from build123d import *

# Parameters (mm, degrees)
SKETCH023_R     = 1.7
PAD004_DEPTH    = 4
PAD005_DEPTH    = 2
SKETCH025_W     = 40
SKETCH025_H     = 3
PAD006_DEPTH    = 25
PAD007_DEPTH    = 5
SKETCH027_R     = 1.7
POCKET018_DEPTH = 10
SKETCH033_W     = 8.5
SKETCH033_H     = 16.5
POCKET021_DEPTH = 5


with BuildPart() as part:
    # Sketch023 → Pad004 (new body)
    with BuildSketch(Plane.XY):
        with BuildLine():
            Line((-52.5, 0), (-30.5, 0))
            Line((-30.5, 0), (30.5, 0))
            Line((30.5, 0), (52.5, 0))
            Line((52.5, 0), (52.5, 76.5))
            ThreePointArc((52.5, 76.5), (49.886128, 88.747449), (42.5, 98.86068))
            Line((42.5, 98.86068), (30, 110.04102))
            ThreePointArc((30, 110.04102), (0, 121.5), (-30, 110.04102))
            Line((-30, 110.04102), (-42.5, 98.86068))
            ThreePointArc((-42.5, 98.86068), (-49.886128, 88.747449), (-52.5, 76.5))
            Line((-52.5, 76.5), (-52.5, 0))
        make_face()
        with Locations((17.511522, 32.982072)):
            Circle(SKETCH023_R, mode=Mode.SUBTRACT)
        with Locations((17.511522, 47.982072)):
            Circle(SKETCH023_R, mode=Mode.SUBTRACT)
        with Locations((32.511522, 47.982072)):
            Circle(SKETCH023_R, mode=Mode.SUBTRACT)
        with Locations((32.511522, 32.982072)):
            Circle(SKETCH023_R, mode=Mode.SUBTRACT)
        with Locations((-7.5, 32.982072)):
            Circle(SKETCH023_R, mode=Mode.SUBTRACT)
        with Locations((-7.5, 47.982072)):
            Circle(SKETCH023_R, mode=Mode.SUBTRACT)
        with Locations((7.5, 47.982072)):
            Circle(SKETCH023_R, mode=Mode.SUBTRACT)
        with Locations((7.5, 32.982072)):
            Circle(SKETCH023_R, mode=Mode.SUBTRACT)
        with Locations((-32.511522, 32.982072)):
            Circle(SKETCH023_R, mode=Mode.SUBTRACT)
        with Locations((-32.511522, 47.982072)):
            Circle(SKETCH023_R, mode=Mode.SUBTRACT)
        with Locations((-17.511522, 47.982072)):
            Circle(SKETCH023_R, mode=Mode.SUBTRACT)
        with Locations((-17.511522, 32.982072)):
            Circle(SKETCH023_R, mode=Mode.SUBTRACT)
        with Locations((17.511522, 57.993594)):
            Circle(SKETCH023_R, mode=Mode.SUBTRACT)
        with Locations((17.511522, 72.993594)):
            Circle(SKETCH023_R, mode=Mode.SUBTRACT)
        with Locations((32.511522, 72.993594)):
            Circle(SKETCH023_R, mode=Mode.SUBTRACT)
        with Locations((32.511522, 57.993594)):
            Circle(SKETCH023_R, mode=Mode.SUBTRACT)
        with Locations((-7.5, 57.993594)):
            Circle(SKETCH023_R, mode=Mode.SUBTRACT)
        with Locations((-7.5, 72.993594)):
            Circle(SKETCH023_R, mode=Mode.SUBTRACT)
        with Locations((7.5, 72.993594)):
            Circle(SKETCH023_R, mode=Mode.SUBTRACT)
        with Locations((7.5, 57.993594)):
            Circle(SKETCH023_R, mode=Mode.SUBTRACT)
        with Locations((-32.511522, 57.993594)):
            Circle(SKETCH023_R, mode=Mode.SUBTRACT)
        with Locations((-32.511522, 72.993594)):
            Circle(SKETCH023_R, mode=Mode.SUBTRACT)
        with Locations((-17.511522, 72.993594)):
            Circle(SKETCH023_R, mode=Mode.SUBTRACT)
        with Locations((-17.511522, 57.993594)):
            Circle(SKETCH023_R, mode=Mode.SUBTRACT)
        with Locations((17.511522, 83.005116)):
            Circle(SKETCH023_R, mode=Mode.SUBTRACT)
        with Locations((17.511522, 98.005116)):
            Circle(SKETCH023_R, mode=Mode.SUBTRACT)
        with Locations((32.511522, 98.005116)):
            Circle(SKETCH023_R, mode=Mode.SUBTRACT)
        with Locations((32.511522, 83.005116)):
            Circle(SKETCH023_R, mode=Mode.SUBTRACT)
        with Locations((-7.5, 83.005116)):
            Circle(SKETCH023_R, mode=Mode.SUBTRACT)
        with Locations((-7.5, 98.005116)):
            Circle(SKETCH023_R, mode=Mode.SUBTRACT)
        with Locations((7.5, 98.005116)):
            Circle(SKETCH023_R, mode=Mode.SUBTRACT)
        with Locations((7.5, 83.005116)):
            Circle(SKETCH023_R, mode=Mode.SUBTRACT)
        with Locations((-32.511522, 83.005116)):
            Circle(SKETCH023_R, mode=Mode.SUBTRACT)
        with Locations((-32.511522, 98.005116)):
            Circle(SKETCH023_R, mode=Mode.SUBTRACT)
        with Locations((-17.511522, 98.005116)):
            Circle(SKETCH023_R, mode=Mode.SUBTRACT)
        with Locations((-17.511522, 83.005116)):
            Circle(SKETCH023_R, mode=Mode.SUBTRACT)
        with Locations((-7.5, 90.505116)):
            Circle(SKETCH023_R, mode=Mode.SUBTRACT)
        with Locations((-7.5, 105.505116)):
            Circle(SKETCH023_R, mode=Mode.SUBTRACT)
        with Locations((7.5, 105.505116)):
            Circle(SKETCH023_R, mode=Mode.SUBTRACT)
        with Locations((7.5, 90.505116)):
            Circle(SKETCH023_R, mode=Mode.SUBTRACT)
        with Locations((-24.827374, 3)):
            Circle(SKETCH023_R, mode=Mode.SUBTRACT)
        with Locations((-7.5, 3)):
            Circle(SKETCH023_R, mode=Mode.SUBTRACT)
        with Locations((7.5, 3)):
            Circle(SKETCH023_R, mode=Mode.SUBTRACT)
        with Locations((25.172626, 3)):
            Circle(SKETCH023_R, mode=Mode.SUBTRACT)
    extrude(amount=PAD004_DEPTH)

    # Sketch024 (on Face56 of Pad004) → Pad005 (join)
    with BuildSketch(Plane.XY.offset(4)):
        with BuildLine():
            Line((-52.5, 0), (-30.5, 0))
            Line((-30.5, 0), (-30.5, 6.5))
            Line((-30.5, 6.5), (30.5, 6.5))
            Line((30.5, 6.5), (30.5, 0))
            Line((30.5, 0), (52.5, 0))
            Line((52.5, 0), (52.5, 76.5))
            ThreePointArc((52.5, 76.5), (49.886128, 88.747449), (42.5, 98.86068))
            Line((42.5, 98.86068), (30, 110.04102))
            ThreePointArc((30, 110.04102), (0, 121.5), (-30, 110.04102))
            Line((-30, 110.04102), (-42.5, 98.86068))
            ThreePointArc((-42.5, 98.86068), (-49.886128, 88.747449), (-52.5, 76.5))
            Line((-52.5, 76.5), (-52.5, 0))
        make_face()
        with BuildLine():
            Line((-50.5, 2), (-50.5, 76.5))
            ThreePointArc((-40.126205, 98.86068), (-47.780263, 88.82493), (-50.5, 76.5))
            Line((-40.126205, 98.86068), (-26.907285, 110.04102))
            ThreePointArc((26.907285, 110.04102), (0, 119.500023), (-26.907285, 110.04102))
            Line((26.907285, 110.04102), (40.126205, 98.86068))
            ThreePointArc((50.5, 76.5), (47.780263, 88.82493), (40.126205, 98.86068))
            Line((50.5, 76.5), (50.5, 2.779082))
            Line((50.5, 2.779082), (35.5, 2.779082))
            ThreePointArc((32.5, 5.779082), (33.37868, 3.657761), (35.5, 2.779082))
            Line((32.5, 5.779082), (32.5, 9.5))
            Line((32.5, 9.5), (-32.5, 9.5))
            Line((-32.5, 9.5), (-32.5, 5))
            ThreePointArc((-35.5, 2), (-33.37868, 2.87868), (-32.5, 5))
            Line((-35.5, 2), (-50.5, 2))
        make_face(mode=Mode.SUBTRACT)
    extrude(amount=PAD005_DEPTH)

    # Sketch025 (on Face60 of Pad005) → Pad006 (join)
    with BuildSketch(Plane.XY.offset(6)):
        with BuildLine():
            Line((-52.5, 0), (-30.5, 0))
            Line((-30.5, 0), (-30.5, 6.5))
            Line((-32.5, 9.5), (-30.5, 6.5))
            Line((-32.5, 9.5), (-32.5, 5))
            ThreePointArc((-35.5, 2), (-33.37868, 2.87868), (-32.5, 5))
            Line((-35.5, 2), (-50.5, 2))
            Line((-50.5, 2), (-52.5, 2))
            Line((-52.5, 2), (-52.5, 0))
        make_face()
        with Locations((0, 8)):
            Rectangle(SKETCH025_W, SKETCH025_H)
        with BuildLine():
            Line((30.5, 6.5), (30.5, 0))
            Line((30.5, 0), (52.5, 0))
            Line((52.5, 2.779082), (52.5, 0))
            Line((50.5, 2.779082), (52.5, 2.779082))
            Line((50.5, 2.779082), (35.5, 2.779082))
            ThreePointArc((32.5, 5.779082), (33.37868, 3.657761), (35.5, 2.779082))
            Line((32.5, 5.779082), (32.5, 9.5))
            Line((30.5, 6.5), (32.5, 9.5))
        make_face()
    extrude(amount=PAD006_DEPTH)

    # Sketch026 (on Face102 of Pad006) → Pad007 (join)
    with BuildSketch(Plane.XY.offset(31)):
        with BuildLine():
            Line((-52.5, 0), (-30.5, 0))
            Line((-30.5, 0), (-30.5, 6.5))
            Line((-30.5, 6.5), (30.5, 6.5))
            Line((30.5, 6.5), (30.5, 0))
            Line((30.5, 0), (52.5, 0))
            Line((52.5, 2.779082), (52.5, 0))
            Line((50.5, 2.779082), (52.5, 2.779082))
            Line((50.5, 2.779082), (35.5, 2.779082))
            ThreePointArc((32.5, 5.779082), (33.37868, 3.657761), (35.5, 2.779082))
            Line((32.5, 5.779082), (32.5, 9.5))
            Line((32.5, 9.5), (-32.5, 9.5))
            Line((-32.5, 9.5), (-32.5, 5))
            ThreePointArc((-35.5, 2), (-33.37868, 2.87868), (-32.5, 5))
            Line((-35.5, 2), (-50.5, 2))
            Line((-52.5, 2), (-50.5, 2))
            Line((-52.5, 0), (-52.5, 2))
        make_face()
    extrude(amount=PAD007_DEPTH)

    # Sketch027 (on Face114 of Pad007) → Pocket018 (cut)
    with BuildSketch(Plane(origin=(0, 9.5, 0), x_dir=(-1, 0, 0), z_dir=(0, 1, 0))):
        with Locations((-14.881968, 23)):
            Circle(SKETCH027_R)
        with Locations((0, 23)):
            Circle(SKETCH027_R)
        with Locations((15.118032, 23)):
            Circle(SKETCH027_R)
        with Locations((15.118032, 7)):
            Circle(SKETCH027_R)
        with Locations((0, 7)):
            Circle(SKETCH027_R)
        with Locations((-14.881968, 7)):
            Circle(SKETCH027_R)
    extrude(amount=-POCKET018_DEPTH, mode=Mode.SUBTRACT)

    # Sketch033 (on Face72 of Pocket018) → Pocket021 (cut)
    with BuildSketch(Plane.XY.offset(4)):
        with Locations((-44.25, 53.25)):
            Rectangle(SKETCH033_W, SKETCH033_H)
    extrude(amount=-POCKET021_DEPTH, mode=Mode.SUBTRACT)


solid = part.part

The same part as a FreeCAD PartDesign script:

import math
import FreeCAD as App
import Part
import Sketcher
from FreeCAD import Vector
Q = App.Units.Quantity


def add_polygon(sketch, points):
    """Adds a closed chain of lines whose ends are joined by coincident constraints."""
    first, n = sketch.GeometryCount, len(points)
    for a, b in zip(points, points[1:] + points[:1]):
        sketch.addGeometry(Part.LineSegment(App.Vector(*a, 0), App.Vector(*b, 0)), False)
    for i in range(n):
        sketch.addConstraint(Sketcher.Constraint("Coincident", first + i, 2, first + (i + 1) % n, 1))

doc = App.newDocument("Part")
body = doc.addObject("PartDesign::Body", "Body")

# Sketch on XY plane
sketch1 = body.newObject("Sketcher::SketchObject", "Sketch")
sketch1.AttachmentSupport = (doc.getObject("XY_Plane"), [""])
sketch1.MapMode = "FlatFace"
sketch1.addGeometry([
    Part.LineSegment(Vector(-52.5, 0, 0), Vector(52.5, 0, 0)),  # 0
    Part.LineSegment(Vector(52.5, 0, 0), Vector(52.5, 76.5, 0)),  # 1
    Part.ArcOfCircle(Part.Circle(Vector(22.5, 76.5, 0), Vector(0, 0, 1), 30), math.radians(0), math.radians(48)),  # 2
    Part.LineSegment(Vector(42.5, 98.9, 0), Vector(30, 110, 0)),  # 3
    Part.ArcOfCircle(Part.Circle(Vector(0, 76.5, 0), Vector(0, 0, 1), 45), math.radians(48), math.radians(132)),  # 4
    Part.LineSegment(Vector(-30, 110, 0), Vector(-42.5, 98.9, 0)),  # 5
    Part.ArcOfCircle(Part.Circle(Vector(-22.5, 76.5, 0), Vector(0, 0, 1), 30), math.radians(132), math.radians(180)),  # 6
    Part.LineSegment(Vector(-52.5, 76.5, 0), Vector(-52.5, 0, 0)),  # 7
    Part.Circle(Vector(-24.8, 3, 0), Vector(0, 0, 1), 1.7),  # 8
    Part.Circle(Vector(-7.5, 3, 0), Vector(0, 0, 1), 1.7),  # 9
    Part.Circle(Vector(-32.5, 33, 0), Vector(0, 0, 1), 1.7),  # 10
    Part.Circle(Vector(-17.5, 33, 0), Vector(0, 0, 1), 1.7),  # 11
    Part.Circle(Vector(-32.5, 48, 0), Vector(0, 0, 1), 1.7),  # 12
    Part.Circle(Vector(-17.5, 48, 0), Vector(0, 0, 1), 1.7),  # 13
    Part.Circle(Vector(-7.5, 33, 0), Vector(0, 0, 1), 1.7),  # 14
    Part.Circle(Vector(-7.5, 48, 0), Vector(0, 0, 1), 1.7),  # 15
    Part.Circle(Vector(7.5, 3, 0), Vector(0, 0, 1), 1.7),  # 16
    Part.Circle(Vector(25.2, 3, 0), Vector(0, 0, 1), 1.7),  # 17
    Part.Circle(Vector(7.5, 33, 0), Vector(0, 0, 1), 1.7),  # 18
    Part.Circle(Vector(7.5, 48, 0), Vector(0, 0, 1), 1.7),  # 19
    Part.Circle(Vector(17.5, 33, 0), Vector(0, 0, 1), 1.7),  # 20
    Part.Circle(Vector(32.5, 33, 0), Vector(0, 0, 1), 1.7),  # 21
    Part.Circle(Vector(17.5, 48, 0), Vector(0, 0, 1), 1.7),  # 22
    Part.Circle(Vector(32.5, 48, 0), Vector(0, 0, 1), 1.7),  # 23
    Part.Circle(Vector(-32.5, 58, 0), Vector(0, 0, 1), 1.7),  # 24
    Part.Circle(Vector(-17.5, 58, 0), Vector(0, 0, 1), 1.7),  # 25
    Part.Circle(Vector(-32.5, 73, 0), Vector(0, 0, 1), 1.7),  # 26
    Part.Circle(Vector(-17.5, 73, 0), Vector(0, 0, 1), 1.7),  # 27
    Part.Circle(Vector(-7.5, 58, 0), Vector(0, 0, 1), 1.7),  # 28
    Part.Circle(Vector(-7.5, 73, 0), Vector(0, 0, 1), 1.7),  # 29
    Part.Circle(Vector(-32.5, 83, 0), Vector(0, 0, 1), 1.7),  # 30
    Part.Circle(Vector(-17.5, 83, 0), Vector(0, 0, 1), 1.7),  # 31
    Part.Circle(Vector(-32.5, 98, 0), Vector(0, 0, 1), 1.7),  # 32
    Part.Circle(Vector(-17.5, 98, 0), Vector(0, 0, 1), 1.7),  # 33
    Part.Circle(Vector(-7.5, 83, 0), Vector(0, 0, 1), 1.7),  # 34
    Part.Circle(Vector(-7.5, 90.5, 0), Vector(0, 0, 1), 1.7),  # 35
    Part.Circle(Vector(-7.5, 98, 0), Vector(0, 0, 1), 1.7),  # 36
    Part.Circle(Vector(-7.5, 105.5, 0), Vector(0, 0, 1), 1.7),  # 37
    Part.Circle(Vector(7.5, 58, 0), Vector(0, 0, 1), 1.7),  # 38
    Part.Circle(Vector(7.5, 73, 0), Vector(0, 0, 1), 1.7),  # 39
    Part.Circle(Vector(17.5, 58, 0), Vector(0, 0, 1), 1.7),  # 40
    Part.Circle(Vector(32.5, 58, 0), Vector(0, 0, 1), 1.7),  # 41
    Part.Circle(Vector(17.5, 73, 0), Vector(0, 0, 1), 1.7),  # 42
    Part.Circle(Vector(32.5, 73, 0), Vector(0, 0, 1), 1.7),  # 43
    Part.Circle(Vector(7.5, 83, 0), Vector(0, 0, 1), 1.7),  # 44
    Part.Circle(Vector(7.5, 90.5, 0), Vector(0, 0, 1), 1.7),  # 45
    Part.Circle(Vector(7.5, 98, 0), Vector(0, 0, 1), 1.7),  # 46
    Part.Circle(Vector(7.5, 105.5, 0), Vector(0, 0, 1), 1.7),  # 47
    Part.Circle(Vector(17.5, 83, 0), Vector(0, 0, 1), 1.7),  # 48
    Part.Circle(Vector(32.5, 83, 0), Vector(0, 0, 1), 1.7),  # 49
    Part.Circle(Vector(17.5, 98, 0), Vector(0, 0, 1), 1.7),  # 50
    Part.Circle(Vector(32.5, 98, 0), Vector(0, 0, 1), 1.7),  # 51
], False)
sketch1.addConstraint([
    Sketcher.Constraint("Coincident", 0, 2, 1, 1),
    Sketcher.Constraint("Tangent", 1, 2, 2, 1),
    Sketcher.Constraint("Tangent", 2, 2, 3, 1),
    Sketcher.Constraint("Tangent", 3, 2, 4, 1),
    Sketcher.Constraint("Tangent", 4, 2, 5, 1),
    Sketcher.Constraint("Tangent", 5, 2, 6, 1),
    Sketcher.Constraint("Tangent", 6, 2, 7, 1),
    Sketcher.Constraint("Coincident", 7, 2, 0, 1),
    Sketcher.Constraint("Horizontal", 0),
    Sketcher.Constraint("Vertical", 1),
    Sketcher.Constraint("Vertical", 7),
    Sketcher.Constraint("Equal", 2, 6),
    Sketcher.Constraint("Equal", 8, 9),
    Sketcher.Constraint("Equal", 9, 10),
    Sketcher.Constraint("Equal", 10, 11),
    Sketcher.Constraint("Equal", 11, 12),
    Sketcher.Constraint("Equal", 12, 13),
    Sketcher.Constraint("Equal", 13, 14),
    Sketcher.Constraint("Equal", 14, 15),
    Sketcher.Constraint("Equal", 15, 16),
    Sketcher.Constraint("Equal", 16, 17),
    Sketcher.Constraint("Equal", 17, 18),
    Sketcher.Constraint("Equal", 18, 19),
    Sketcher.Constraint("Equal", 19, 20),
    Sketcher.Constraint("Equal", 20, 21),
    Sketcher.Constraint("Equal", 21, 22),
    Sketcher.Constraint("Equal", 22, 23),
    Sketcher.Constraint("Equal", 23, 24),
    Sketcher.Constraint("Equal", 24, 25),
    Sketcher.Constraint("Equal", 25, 26),
    Sketcher.Constraint("Equal", 26, 27),
    Sketcher.Constraint("Equal", 27, 28),
    Sketcher.Constraint("Equal", 28, 29),
    Sketcher.Constraint("Equal", 29, 30),
    Sketcher.Constraint("Equal", 30, 31),
    Sketcher.Constraint("Equal", 31, 32),
    Sketcher.Constraint("Equal", 32, 33),
    Sketcher.Constraint("Equal", 33, 34),
    Sketcher.Constraint("Equal", 34, 35),
    Sketcher.Constraint("Equal", 35, 36),
    Sketcher.Constraint("Equal", 36, 37),
    Sketcher.Constraint("Equal", 37, 38),
    Sketcher.Constraint("Equal", 38, 39),
    Sketcher.Constraint("Equal", 39, 40),
    Sketcher.Constraint("Equal", 40, 41),
    Sketcher.Constraint("Equal", 41, 42),
    Sketcher.Constraint("Equal", 42, 43),
    Sketcher.Constraint("Equal", 43, 44),
    Sketcher.Constraint("Equal", 44, 45),
    Sketcher.Constraint("Equal", 45, 46),
    Sketcher.Constraint("Equal", 46, 47),
    Sketcher.Constraint("Equal", 47, 48),
    Sketcher.Constraint("Equal", 48, 49),
    Sketcher.Constraint("Equal", 49, 50),
    Sketcher.Constraint("Equal", 50, 51),
    Sketcher.Constraint("Symmetric", 0, 2, 7, 2, -1, 1),
    Sketcher.Constraint("Symmetric", 9, 3, 16, 3, -2),
    Sketcher.Constraint("Symmetric", 14, 3, 18, 3, -2),
    Sketcher.Constraint("Symmetric", 15, 3, 19, 3, -2),
    Sketcher.Constraint("Symmetric", 11, 3, 20, 3, -2),
    Sketcher.Constraint("Symmetric", 10, 3, 21, 3, -2),
    Sketcher.Constraint("Symmetric", 13, 3, 22, 3, -2),
    Sketcher.Constraint("Symmetric", 12, 3, 23, 3, -2),
    Sketcher.Constraint("Symmetric", 28, 3, 38, 3, -2),
    Sketcher.Constraint("Symmetric", 29, 3, 39, 3, -2),
    Sketcher.Constraint("Symmetric", 25, 3, 40, 3, -2),
    Sketcher.Constraint("Symmetric", 24, 3, 41, 3, -2),
    Sketcher.Constraint("Symmetric", 27, 3, 42, 3, -2),
    Sketcher.Constraint("Symmetric", 26, 3, 43, 3, -2),
    Sketcher.Constraint("Symmetric", 34, 3, 44, 3, -2),
    Sketcher.Constraint("Symmetric", 35, 3, 45, 3, -2),
    Sketcher.Constraint("Symmetric", 36, 3, 46, 3, -2),
    Sketcher.Constraint("Symmetric", 37, 3, 47, 3, -2),
    Sketcher.Constraint("Symmetric", 31, 3, 48, 3, -2),
    Sketcher.Constraint("Symmetric", 30, 3, 49, 3, -2),
    Sketcher.Constraint("Symmetric", 33, 3, 50, 3, -2),
    Sketcher.Constraint("Symmetric", 32, 3, 51, 3, -2),
    Sketcher.Constraint("Symmetric", 3, 2, 4, 2, -2),
    Sketcher.Constraint("Horizontal", 2, 3, 4, 3),
    Sketcher.Constraint("Horizontal", 8, 3, 9, 3),
    Sketcher.Constraint("Horizontal", 10, 3, 11, 3),
    Sketcher.Constraint("Horizontal", 12, 3, 13, 3),
    Sketcher.Constraint("Horizontal", 11, 3, 14, 3),
    Sketcher.Constraint("Horizontal", 13, 3, 15, 3),
    Sketcher.Constraint("Horizontal", 16, 3, 17, 3),
    Sketcher.Constraint("Horizontal", 24, 3, 25, 3),
    Sketcher.Constraint("Horizontal", 26, 3, 27, 3),
    Sketcher.Constraint("Horizontal", 25, 3, 28, 3),
    Sketcher.Constraint("Horizontal", 27, 3, 29, 3),
    Sketcher.Constraint("Horizontal", 30, 3, 31, 3),
    Sketcher.Constraint("Horizontal", 32, 3, 33, 3),
    Sketcher.Constraint("Horizontal", 31, 3, 34, 3),
    Sketcher.Constraint("Horizontal", 33, 3, 36, 3),
    Sketcher.Constraint("Vertical", 10, 3, 12, 3),
    Sketcher.Constraint("Vertical", 11, 3, 13, 3),
    Sketcher.Constraint("Vertical", 9, 3, 14, 3),
    Sketcher.Constraint("Vertical", 14, 3, 15, 3),
    Sketcher.Constraint("Vertical", 12, 3, 24, 3),
    Sketcher.Constraint("Vertical", 13, 3, 25, 3),
    Sketcher.Constraint("Vertical", 24, 3, 26, 3),
    Sketcher.Constraint("Vertical", 25, 3, 27, 3),
    Sketcher.Constraint("Vertical", 15, 3, 28, 3),
    Sketcher.Constraint("Vertical", 28, 3, 29, 3),
    Sketcher.Constraint("Vertical", 26, 3, 30, 3),
    Sketcher.Constraint("Vertical", 27, 3, 31, 3),
    Sketcher.Constraint("Vertical", 30, 3, 32, 3),
    Sketcher.Constraint("Vertical", 31, 3, 33, 3),
    Sketcher.Constraint("Vertical", 29, 3, 34, 3),
    Sketcher.Constraint("Vertical", 34, 3, 35, 3),
    Sketcher.Constraint("Vertical", 35, 3, 36, 3),
    Sketcher.Constraint("Vertical", 36, 3, 37, 3),
    Sketcher.Constraint("Radius", 2, Q("29.999999 mm")),
    Sketcher.Constraint("Radius", 4, Q("45.000001 mm")),
    Sketcher.Constraint("Diameter", 8, Q("3.4 mm")),
    Sketcher.Constraint("DistanceX", 0, 1, 0, 2, Q("105 mm")),
    Sketcher.Constraint("DistanceY", 1, 1, 1, 2, Q("76.5 mm")),
    Sketcher.Constraint("DistanceY", -1, 1, 8, 3, Q("3 mm")),
    Sketcher.Constraint("DistanceX", 6, 3, 9, 3, Q("15.000001 mm")),
    Sketcher.Constraint("DistanceX", 10, 3, 11, 3, Q("15 mm")),
    Sketcher.Constraint("DistanceY", 10, 3, 12, 3, Q("15 mm")),
    Sketcher.Constraint("DistanceX", 8, 3, 17, 3, Q("50 mm")),
    Sketcher.Constraint("DistanceY", 24, 3, 26, 3, Q("15 mm")),
    Sketcher.Constraint("DistanceY", 30, 3, 32, 3, Q("15 mm")),
    Sketcher.Constraint("DistanceY", 35, 3, 37, 3, Q("15 mm")),
    Sketcher.Constraint("DistanceY", 34, 3, 35, 3, Q("7.5 mm")),
    Sketcher.Constraint("DistanceX", 11, 3, -1, 1, Q("17.511522 mm")),
    Sketcher.Constraint("DistanceX", 10, 3, 8, 3, Q("7.684148 mm")),
    Sketcher.Constraint("DistanceY", 10, 3, 6, 3, Q("43.517929 mm")),
    Sketcher.Constraint("DistanceY", 12, 3, 24, 3, Q("10.011522 mm")),
    Sketcher.Constraint("DistanceY", 26, 3, 30, 3, Q("10.011522 mm")),
])
pad1 = body.newObject("PartDesign::Pad", "Pad")
pad1.Profile = sketch1
pad1.Length = 4

# Sketch on XY plane
sketch2 = body.newObject("Sketcher::SketchObject", "Sketch001")
sketch2.AttachmentSupport = (doc.getObject("XY_Plane"), [""])
sketch2.MapMode = "FlatFace"
sketch2.AttachmentOffset = App.Placement(Vector(0, 0, 4), App.Rotation())
sketch2.addGeometry([
    Part.LineSegment(Vector(-52.5, 0, 0), Vector(-30.5, 0, 0)),  # 0
    Part.LineSegment(Vector(-30.5, 0, 0), Vector(-30.5, 6.5, 0)),  # 1
    Part.LineSegment(Vector(-30.5, 6.5, 0), Vector(30.5, 6.5, 0)),  # 2
    Part.LineSegment(Vector(30.5, 6.5, 0), Vector(30.5, 0, 0)),  # 3
    Part.LineSegment(Vector(30.5, 0, 0), Vector(52.5, 0, 0)),  # 4
    Part.LineSegment(Vector(52.5, 0, 0), Vector(52.5, 76.5, 0)),  # 5
    Part.ArcOfCircle(Part.Circle(Vector(22.5, 76.5, 0), Vector(0, 0, 1), 30), math.radians(0), math.radians(48)),  # 6
    Part.LineSegment(Vector(42.5, 98.9, 0), Vector(30, 110, 0)),  # 7
    Part.ArcOfCircle(Part.Circle(Vector(0, 76.5, 0), Vector(0, 0, 1), 45), math.radians(48), math.radians(132)),  # 8
    Part.LineSegment(Vector(-30, 110, 0), Vector(-42.5, 98.9, 0)),  # 9
    Part.ArcOfCircle(Part.Circle(Vector(-22.5, 76.5, 0), Vector(0, 0, 1), 30), math.radians(132), math.radians(180)),  # 10
    Part.LineSegment(Vector(-52.5, 76.5, 0), Vector(-52.5, 0, 0)),  # 11
    Part.LineSegment(Vector(-35.5, 2, 0), Vector(-50.5, 2, 0)),  # 12
    Part.LineSegment(Vector(-50.5, 2, 0), Vector(-50.5, 76.5, 0)),  # 13
    Part.ArcOfCircle(Part.Circle(Vector(-21.2, 76.5, 0), Vector(0, 0, 1), 29.3), math.radians(130), math.radians(180)),  # 14
    Part.LineSegment(Vector(-40.1, 98.9, 0), Vector(-26.9, 110, 0)),  # 15
    Part.ArcOfCircle(Part.Circle(Vector(0, 76.5, 0), Vector(0, 0, 1), 43), math.radians(51), math.radians(129)),  # 16
    Part.LineSegment(Vector(26.9, 110, 0), Vector(40.1, 98.9, 0)),  # 17
    Part.ArcOfCircle(Part.Circle(Vector(21.2, 76.5, 0), Vector(0, 0, 1), 29.3), math.radians(0), math.radians(50)),  # 18
    Part.LineSegment(Vector(50.5, 76.5, 0), Vector(50.5, 2.8, 0)),  # 19
    Part.LineSegment(Vector(50.5, 2.8, 0), Vector(35.5, 2.8, 0)),  # 20
    Part.ArcOfCircle(Part.Circle(Vector(35.5, 5.8, 0), Vector(0, 0, 1), 3), math.radians(180), math.radians(270)),  # 21
    Part.LineSegment(Vector(32.5, 5.8, 0), Vector(32.5, 9.5, 0)),  # 22
    Part.LineSegment(Vector(32.5, 9.5, 0), Vector(-32.5, 9.5, 0)),  # 23
    Part.LineSegment(Vector(-32.5, 9.5, 0), Vector(-32.5, 5, 0)),  # 24
    Part.ArcOfCircle(Part.Circle(Vector(-35.5, 5, 0), Vector(0, 0, 1), 3), math.radians(-90), math.radians(0)),  # 25
], False)
sketch2.addConstraint([
    Sketcher.Constraint("Coincident", 0, 2, 1, 1),
    Sketcher.Constraint("Coincident", 1, 2, 2, 1),
    Sketcher.Constraint("Coincident", 2, 2, 3, 1),
    Sketcher.Constraint("Coincident", 3, 2, 4, 1),
    Sketcher.Constraint("Coincident", 4, 2, 5, 1),
    Sketcher.Constraint("Tangent", 5, 2, 6, 1),
    Sketcher.Constraint("Tangent", 6, 2, 7, 1),
    Sketcher.Constraint("Tangent", 7, 2, 8, 1),
    Sketcher.Constraint("Tangent", 8, 2, 9, 1),
    Sketcher.Constraint("Tangent", 9, 2, 10, 1),
    Sketcher.Constraint("Tangent", 10, 2, 11, 1),
    Sketcher.Constraint("Coincident", 11, 2, 0, 1),
    Sketcher.Constraint("Coincident", 12, 2, 13, 1),
    Sketcher.Constraint("Tangent", 13, 2, 14, 2),
    Sketcher.Constraint("Tangent", 14, 1, 15, 1),
    Sketcher.Constraint("Coincident", 15, 2, 16, 2),
    Sketcher.Constraint("Coincident", 16, 1, 17, 1),
    Sketcher.Constraint("Tangent", 17, 2, 18, 2),
    Sketcher.Constraint("Tangent", 18, 1, 19, 1),
    Sketcher.Constraint("Coincident", 19, 2, 20, 1),
    Sketcher.Constraint("Tangent", 20, 2, 21, 2),
    Sketcher.Constraint("Tangent", 21, 1, 22, 1),
    Sketcher.Constraint("Coincident", 22, 2, 23, 1),
    Sketcher.Constraint("Coincident", 23, 2, 24, 1),
    Sketcher.Constraint("Tangent", 24, 2, 25, 2),
    Sketcher.Constraint("Tangent", 25, 1, 12, 1),
    Sketcher.Constraint("Horizontal", 0),
    Sketcher.Constraint("Vertical", 1),
    Sketcher.Constraint("Horizontal", 2),
    Sketcher.Constraint("Vertical", 3),
    Sketcher.Constraint("Horizontal", 4),
    Sketcher.Constraint("Vertical", 5),
    Sketcher.Constraint("Vertical", 11),
    Sketcher.Constraint("Horizontal", 12),
    Sketcher.Constraint("Vertical", 13),
    Sketcher.Constraint("Vertical", 19),
    Sketcher.Constraint("Horizontal", 20),
    Sketcher.Constraint("Vertical", 22),
    Sketcher.Constraint("Horizontal", 23),
    Sketcher.Constraint("Vertical", 24),
    Sketcher.Constraint("Coincident", 16, 3, 8, 3),
    Sketcher.Constraint("Equal", 6, 10),
    Sketcher.Constraint("Equal", 14, 18),
    Sketcher.Constraint("Equal", 21, 25),
    Sketcher.Constraint("Symmetric", 0, 2, 3, 2, -1, 1),
    Sketcher.Constraint("Symmetric", 6, 3, 10, 3, -2),
    Sketcher.Constraint("Symmetric", 14, 3, 18, 3, -2),
    Sketcher.Constraint("Symmetric", 15, 2, 16, 1, -2),
    Sketcher.Constraint("PointOnObject", 0, 2, -1),
    Sketcher.Constraint("Horizontal", 6, 3, 8, 3),
    Sketcher.Constraint("Horizontal", 8, 3, 14, 3),
    Sketcher.Constraint("Horizontal", 9, 2, 14, 1),
    Sketcher.Constraint("Horizontal", 8, 2, 15, 2),
    Sketcher.Constraint("Equal", 12, 20),
    Sketcher.Constraint("Radius", 6, Q("29.999999 mm")),
    Sketcher.Constraint("Radius", 8, Q("45.000001 mm")),
    Sketcher.Constraint("Radius", 21, Q("2.999999 mm")),
    Sketcher.Constraint("DistanceX", 0, 1, 0, 2, Q("22 mm")),
    Sketcher.Constraint("DistanceX", 2, 1, 2, 2, Q("61 mm")),
    Sketcher.Constraint("DistanceX", 12, 2, 12, 1, Q("15 mm")),
    Sketcher.Constraint("DistanceX", 23, 2, 23, 1, Q("65 mm")),
    Sketcher.Constraint("DistanceY", 1, 1, 1, 2, Q("6.5 mm")),
    Sketcher.Constraint("DistanceY", 5, 1, 5, 2, Q("76.5 mm")),
    Sketcher.Constraint("DistanceY", 13, 1, 13, 2, Q("74.5 mm")),
    Sketcher.Constraint("DistanceY", 24, 2, 24, 1, Q("4.5 mm")),
    Sketcher.Constraint("Radius", 14, Q("29.286085 mm")),
    Sketcher.Constraint("DistanceY", 22, 1, 22, 2, Q("3.720918 mm")),
])
pad2 = body.newObject("PartDesign::Pad", "Pad001")
pad2.Profile = sketch2
pad2.Length = 2

# Sketch on XY plane
sketch3 = body.newObject("Sketcher::SketchObject", "Sketch002")
sketch3.AttachmentSupport = (doc.getObject("XY_Plane"), [""])
sketch3.MapMode = "FlatFace"
sketch3.AttachmentOffset = App.Placement(Vector(0, 0, 6), App.Rotation())
sketch3.addGeometry(Part.LineSegment(Vector(-52.5, 0, 0), Vector(-30.5, 0, 0)), False)  # 0
sketch3.addGeometry(Part.LineSegment(Vector(-30.5, 0, 0), Vector(-30.5, 6.5, 0)), False)  # 1
sketch3.addGeometry(Part.LineSegment(Vector(-30.5, 6.5, 0), Vector(-32.5, 9.5, 0)), False)  # 2
sketch3.addGeometry(Part.LineSegment(Vector(-32.5, 9.5, 0), Vector(-32.5, 5, 0)), False)  # 3
sketch3.addGeometry(Part.ArcOfCircle(Part.Circle(Vector(-35.5, 5, 0), Vector(0, 0, 1), 3), math.radians(-90), math.radians(0)), False)  # 4
sketch3.addGeometry(Part.LineSegment(Vector(-35.5, 2, 0), Vector(-52.5, 2, 0)), False)  # 5
sketch3.addGeometry(Part.LineSegment(Vector(-52.5, 2, 0), Vector(-52.5, 0, 0)), False)  # 6
add_polygon(sketch3, [(-20, 9.5), (-20, 6.5), (20, 6.5), (20, 9.5)])  # lines 7-10
sketch3.addGeometry(Part.LineSegment(Vector(30.5, 6.5, 0), Vector(30.5, 0, 0)), False)  # 11
sketch3.addGeometry(Part.LineSegment(Vector(30.5, 0, 0), Vector(52.5, 0, 0)), False)  # 12
sketch3.addGeometry(Part.LineSegment(Vector(52.5, 0, 0), Vector(52.5, 2.8, 0)), False)  # 13
sketch3.addGeometry(Part.LineSegment(Vector(52.5, 2.8, 0), Vector(35.5, 2.8, 0)), False)  # 14
sketch3.addGeometry(Part.ArcOfCircle(Part.Circle(Vector(35.5, 5.8, 0), Vector(0, 0, 1), 3), math.radians(180), math.radians(270)), False)  # 15
sketch3.addGeometry(Part.LineSegment(Vector(32.5, 5.8, 0), Vector(32.5, 9.5, 0)), False)  # 16
sketch3.addGeometry(Part.LineSegment(Vector(32.5, 9.5, 0), Vector(30.5, 6.5, 0)), False)  # 17
sketch3.addConstraint([
    Sketcher.Constraint("Coincident", 0, 2, 1, 1),
    Sketcher.Constraint("Coincident", 1, 2, 2, 1),
    Sketcher.Constraint("Coincident", 2, 2, 3, 1),
    Sketcher.Constraint("Tangent", 3, 2, 4, 2),
    Sketcher.Constraint("Tangent", 4, 1, 5, 1),
    Sketcher.Constraint("Coincident", 5, 2, 6, 1),
    Sketcher.Constraint("Coincident", 6, 2, 0, 1),
    Sketcher.Constraint("Coincident", 11, 2, 12, 1),
    Sketcher.Constraint("Coincident", 12, 2, 13, 1),
    Sketcher.Constraint("Coincident", 13, 2, 14, 1),
    Sketcher.Constraint("Tangent", 14, 2, 15, 2),
    Sketcher.Constraint("Tangent", 15, 1, 16, 1),
    Sketcher.Constraint("Coincident", 16, 2, 17, 1),
    Sketcher.Constraint("Coincident", 17, 2, 11, 1),
    Sketcher.Constraint("Horizontal", 0),
    Sketcher.Constraint("Vertical", 1),
    Sketcher.Constraint("Vertical", 3),
    Sketcher.Constraint("Horizontal", 5),
    Sketcher.Constraint("Vertical", 6),
    Sketcher.Constraint("Vertical", 7),
    Sketcher.Constraint("Horizontal", 8),
    Sketcher.Constraint("Vertical", 9),
    Sketcher.Constraint("Horizontal", 10),
    Sketcher.Constraint("Vertical", 11),
    Sketcher.Constraint("Horizontal", 12),
    Sketcher.Constraint("Vertical", 13),
    Sketcher.Constraint("Horizontal", 14),
    Sketcher.Constraint("Vertical", 16),
    Sketcher.Constraint("Equal", 4, 15),
    Sketcher.Constraint("Symmetric", 0, 2, 11, 2, -1, 1),
    Sketcher.Constraint("Symmetric", 6, 2, 12, 2, -2),
    Sketcher.Constraint("Symmetric", 2, 2, 16, 2, -2),
    Sketcher.Constraint("Horizontal", 1, 2, 7, 2),
    Sketcher.Constraint("Horizontal", 2, 2, 9, 2),
    Sketcher.Constraint("Horizontal", 8, 2, 17, 2),
    Sketcher.Constraint("Radius", 4, Q("3.000001 mm")),
    Sketcher.Constraint("DistanceX", 0, 1, 0, 2, Q("22 mm")),
    Sketcher.Constraint("DistanceX", 5, 2, 5, 1, Q("17 mm")),
    Sketcher.Constraint("DistanceX", 8, 1, 8, 2, Q("40 mm")),
    Sketcher.Constraint("DistanceY", 6, 2, 6, 1, Q("2 mm")),
    Sketcher.Constraint("DistanceY", 7, 2, 7, 1, Q("3 mm")),
    Sketcher.Constraint("DistanceY", 1, 1, 1, 2, Q("6.5 mm")),
    Sketcher.Constraint("DistanceX", 7, 2, -1, 1, Q("20 mm")),
    Sketcher.Constraint("DistanceX", 4, 3, 15, 3, Q("71.000001 mm")),
    Sketcher.Constraint("DistanceY", 13, 1, 13, 2, Q("2.779082 mm")),
])
pad3 = body.newObject("PartDesign::Pad", "Pad002")
pad3.Profile = sketch3
pad3.Length = 25

# Sketch on XY plane
sketch4 = body.newObject("Sketcher::SketchObject", "Sketch003")
sketch4.AttachmentSupport = (doc.getObject("XY_Plane"), [""])
sketch4.MapMode = "FlatFace"
sketch4.AttachmentOffset = App.Placement(Vector(0, 0, 31), App.Rotation())
sketch4.addGeometry([
    Part.LineSegment(Vector(-52.5, 0, 0), Vector(-30.5, 0, 0)),  # 0
    Part.LineSegment(Vector(-30.5, 0, 0), Vector(-30.5, 6.5, 0)),  # 1
    Part.LineSegment(Vector(-30.5, 6.5, 0), Vector(30.5, 6.5, 0)),  # 2
    Part.LineSegment(Vector(30.5, 6.5, 0), Vector(30.5, 0, 0)),  # 3
    Part.LineSegment(Vector(30.5, 0, 0), Vector(52.5, 0, 0)),  # 4
    Part.LineSegment(Vector(52.5, 0, 0), Vector(52.5, 2.8, 0)),  # 5
    Part.LineSegment(Vector(52.5, 2.8, 0), Vector(35.5, 2.8, 0)),  # 6
    Part.ArcOfCircle(Part.Circle(Vector(35.5, 5.8, 0), Vector(0, 0, 1), 3), math.radians(180), math.radians(270)),  # 7
    Part.LineSegment(Vector(32.5, 5.8, 0), Vector(32.5, 9.5, 0)),  # 8
    Part.LineSegment(Vector(32.5, 9.5, 0), Vector(-32.5, 9.5, 0)),  # 9
    Part.LineSegment(Vector(-32.5, 9.5, 0), Vector(-32.5, 5, 0)),  # 10
    Part.ArcOfCircle(Part.Circle(Vector(-35.5, 5, 0), Vector(0, 0, 1), 3), math.radians(-90), math.radians(0)),  # 11
    Part.LineSegment(Vector(-35.5, 2, 0), Vector(-52.5, 2, 0)),  # 12
    Part.LineSegment(Vector(-52.5, 2, 0), Vector(-52.5, 0, 0)),  # 13
], False)
sketch4.addConstraint([
    Sketcher.Constraint("Coincident", 0, 2, 1, 1),
    Sketcher.Constraint("Coincident", 1, 2, 2, 1),
    Sketcher.Constraint("Coincident", 2, 2, 3, 1),
    Sketcher.Constraint("Coincident", 3, 2, 4, 1),
    Sketcher.Constraint("Coincident", 4, 2, 5, 1),
    Sketcher.Constraint("Coincident", 5, 2, 6, 1),
    Sketcher.Constraint("Tangent", 6, 2, 7, 2),
    Sketcher.Constraint("Tangent", 7, 1, 8, 1),
    Sketcher.Constraint("Coincident", 8, 2, 9, 1),
    Sketcher.Constraint("Coincident", 9, 2, 10, 1),
    Sketcher.Constraint("Tangent", 10, 2, 11, 2),
    Sketcher.Constraint("Tangent", 11, 1, 12, 1),
    Sketcher.Constraint("Coincident", 12, 2, 13, 1),
    Sketcher.Constraint("Coincident", 13, 2, 0, 1),
    Sketcher.Constraint("Horizontal", 0),
    Sketcher.Constraint("Vertical", 1),
    Sketcher.Constraint("Horizontal", 2),
    Sketcher.Constraint("Vertical", 3),
    Sketcher.Constraint("Horizontal", 4),
    Sketcher.Constraint("Vertical", 5),
    Sketcher.Constraint("Horizontal", 6),
    Sketcher.Constraint("Vertical", 8),
    Sketcher.Constraint("Horizontal", 9),
    Sketcher.Constraint("Vertical", 10),
    Sketcher.Constraint("Horizontal", 12),
    Sketcher.Constraint("Vertical", 13),
    Sketcher.Constraint("Equal", 7, 11),
    Sketcher.Constraint("Symmetric", 0, 2, 3, 2, -1, 1),
    Sketcher.Constraint("Symmetric", 4, 2, 13, 2, -2),
    Sketcher.Constraint("Equal", 6, 12),
    Sketcher.Constraint("Radius", 7, Q("2.999999 mm")),
    Sketcher.Constraint("DistanceX", 0, 1, 0, 2, Q("22 mm")),
    Sketcher.Constraint("DistanceX", 2, 1, 2, 2, Q("61 mm")),
    Sketcher.Constraint("DistanceX", 6, 2, 6, 1, Q("17 mm")),
    Sketcher.Constraint("DistanceY", 13, 2, 13, 1, Q("2 mm")),
    Sketcher.Constraint("DistanceY", 1, 1, 1, 2, Q("6.5 mm")),
    Sketcher.Constraint("DistanceY", 10, 2, 10, 1, Q("4.5 mm")),
    Sketcher.Constraint("DistanceY", 5, 1, 5, 2, Q("2.779082 mm")),
])
pad4 = body.newObject("PartDesign::Pad", "Pad003")
pad4.Profile = sketch4
pad4.Length = 5

# Sketch on XZ plane
sketch5 = body.newObject("Sketcher::SketchObject", "Sketch004")
sketch5.AttachmentSupport = (doc.getObject("XZ_Plane"), [""])
sketch5.MapMode = "FlatFace"
sketch5.AttachmentOffset = App.Placement(Vector(0, 0, -9.5), App.Rotation())
sketch5.addGeometry([
    Part.Circle(Vector(14.9, 23, 0), Vector(0, 0, 1), 1.7),  # 0
    Part.Circle(Vector(0, 23, 0), Vector(0, 0, 1), 1.7),  # 1
    Part.Circle(Vector(-15.1, 23, 0), Vector(0, 0, 1), 1.7),  # 2
    Part.Circle(Vector(-15.1, 7, 0), Vector(0, 0, 1), 1.7),  # 3
    Part.Circle(Vector(0, 7, 0), Vector(0, 0, 1), 1.7),  # 4
    Part.Circle(Vector(14.9, 7, 0), Vector(0, 0, 1), 1.7),  # 5
], False)
sketch5.addConstraint([
    Sketcher.Constraint("Equal", 0, 1),
    Sketcher.Constraint("Equal", 1, 2),
    Sketcher.Constraint("Equal", 2, 3),
    Sketcher.Constraint("Equal", 3, 4),
    Sketcher.Constraint("Equal", 4, 5),
    Sketcher.Constraint("PointOnObject", 1, 3, -2),
    Sketcher.Constraint("PointOnObject", 4, 3, -2),
    Sketcher.Constraint("Horizontal", 0, 3, 1, 3),
    Sketcher.Constraint("Horizontal", 1, 3, 2, 3),
    Sketcher.Constraint("Horizontal", 3, 3, 4, 3),
    Sketcher.Constraint("Horizontal", 4, 3, 5, 3),
    Sketcher.Constraint("Vertical", 2, 3, 3, 3),
    Sketcher.Constraint("Vertical", 0, 3, 5, 3),
    Sketcher.Constraint("Diameter", 0, Q("3.4 mm")),
    Sketcher.Constraint("DistanceY", -1, 1, 0, 3, Q("23 mm")),
    Sketcher.Constraint("DistanceY", -1, 1, 3, 3, Q("7 mm")),
    Sketcher.Constraint("DistanceX", 2, 3, 0, 3, Q("30 mm")),
    Sketcher.Constraint("DistanceX", -1, 1, 0, 3, Q("14.881968 mm")),
])
pocket1 = body.newObject("PartDesign::Pocket", "Pocket")
pocket1.Profile = sketch5
pocket1.Length = 10
pocket1.Reversed = True

# Sketch on XY plane
sketch6 = body.newObject("Sketcher::SketchObject", "Sketch005")
sketch6.AttachmentSupport = (doc.getObject("XY_Plane"), [""])
sketch6.MapMode = "FlatFace"
sketch6.AttachmentOffset = App.Placement(Vector(0, 0, 4), App.Rotation())
add_polygon(sketch6, [(-48, 62), (-48, 45), (-40, 45), (-40, 62)])  # lines 0-3
sketch6.addConstraint([
    Sketcher.Constraint("Vertical", 0),
    Sketcher.Constraint("Horizontal", 1),
    Sketcher.Constraint("Vertical", 2),
    Sketcher.Constraint("Horizontal", 3),
    Sketcher.Constraint("DistanceX", 1, 1, 1, 2, Q("8.5 mm")),
    Sketcher.Constraint("DistanceY", 0, 2, 0, 1, Q("16.5 mm")),
    Sketcher.Constraint("DistanceY", -1, 1, 0, 2, Q("45 mm")),
    Sketcher.Constraint("DistanceX", 1, 2, -1, 1, Q("40 mm")),
])
pocket2 = body.newObject("PartDesign::Pocket", "Pocket001")
pocket2.Profile = sketch6
pocket2.Length = 5

doc.recompute()
